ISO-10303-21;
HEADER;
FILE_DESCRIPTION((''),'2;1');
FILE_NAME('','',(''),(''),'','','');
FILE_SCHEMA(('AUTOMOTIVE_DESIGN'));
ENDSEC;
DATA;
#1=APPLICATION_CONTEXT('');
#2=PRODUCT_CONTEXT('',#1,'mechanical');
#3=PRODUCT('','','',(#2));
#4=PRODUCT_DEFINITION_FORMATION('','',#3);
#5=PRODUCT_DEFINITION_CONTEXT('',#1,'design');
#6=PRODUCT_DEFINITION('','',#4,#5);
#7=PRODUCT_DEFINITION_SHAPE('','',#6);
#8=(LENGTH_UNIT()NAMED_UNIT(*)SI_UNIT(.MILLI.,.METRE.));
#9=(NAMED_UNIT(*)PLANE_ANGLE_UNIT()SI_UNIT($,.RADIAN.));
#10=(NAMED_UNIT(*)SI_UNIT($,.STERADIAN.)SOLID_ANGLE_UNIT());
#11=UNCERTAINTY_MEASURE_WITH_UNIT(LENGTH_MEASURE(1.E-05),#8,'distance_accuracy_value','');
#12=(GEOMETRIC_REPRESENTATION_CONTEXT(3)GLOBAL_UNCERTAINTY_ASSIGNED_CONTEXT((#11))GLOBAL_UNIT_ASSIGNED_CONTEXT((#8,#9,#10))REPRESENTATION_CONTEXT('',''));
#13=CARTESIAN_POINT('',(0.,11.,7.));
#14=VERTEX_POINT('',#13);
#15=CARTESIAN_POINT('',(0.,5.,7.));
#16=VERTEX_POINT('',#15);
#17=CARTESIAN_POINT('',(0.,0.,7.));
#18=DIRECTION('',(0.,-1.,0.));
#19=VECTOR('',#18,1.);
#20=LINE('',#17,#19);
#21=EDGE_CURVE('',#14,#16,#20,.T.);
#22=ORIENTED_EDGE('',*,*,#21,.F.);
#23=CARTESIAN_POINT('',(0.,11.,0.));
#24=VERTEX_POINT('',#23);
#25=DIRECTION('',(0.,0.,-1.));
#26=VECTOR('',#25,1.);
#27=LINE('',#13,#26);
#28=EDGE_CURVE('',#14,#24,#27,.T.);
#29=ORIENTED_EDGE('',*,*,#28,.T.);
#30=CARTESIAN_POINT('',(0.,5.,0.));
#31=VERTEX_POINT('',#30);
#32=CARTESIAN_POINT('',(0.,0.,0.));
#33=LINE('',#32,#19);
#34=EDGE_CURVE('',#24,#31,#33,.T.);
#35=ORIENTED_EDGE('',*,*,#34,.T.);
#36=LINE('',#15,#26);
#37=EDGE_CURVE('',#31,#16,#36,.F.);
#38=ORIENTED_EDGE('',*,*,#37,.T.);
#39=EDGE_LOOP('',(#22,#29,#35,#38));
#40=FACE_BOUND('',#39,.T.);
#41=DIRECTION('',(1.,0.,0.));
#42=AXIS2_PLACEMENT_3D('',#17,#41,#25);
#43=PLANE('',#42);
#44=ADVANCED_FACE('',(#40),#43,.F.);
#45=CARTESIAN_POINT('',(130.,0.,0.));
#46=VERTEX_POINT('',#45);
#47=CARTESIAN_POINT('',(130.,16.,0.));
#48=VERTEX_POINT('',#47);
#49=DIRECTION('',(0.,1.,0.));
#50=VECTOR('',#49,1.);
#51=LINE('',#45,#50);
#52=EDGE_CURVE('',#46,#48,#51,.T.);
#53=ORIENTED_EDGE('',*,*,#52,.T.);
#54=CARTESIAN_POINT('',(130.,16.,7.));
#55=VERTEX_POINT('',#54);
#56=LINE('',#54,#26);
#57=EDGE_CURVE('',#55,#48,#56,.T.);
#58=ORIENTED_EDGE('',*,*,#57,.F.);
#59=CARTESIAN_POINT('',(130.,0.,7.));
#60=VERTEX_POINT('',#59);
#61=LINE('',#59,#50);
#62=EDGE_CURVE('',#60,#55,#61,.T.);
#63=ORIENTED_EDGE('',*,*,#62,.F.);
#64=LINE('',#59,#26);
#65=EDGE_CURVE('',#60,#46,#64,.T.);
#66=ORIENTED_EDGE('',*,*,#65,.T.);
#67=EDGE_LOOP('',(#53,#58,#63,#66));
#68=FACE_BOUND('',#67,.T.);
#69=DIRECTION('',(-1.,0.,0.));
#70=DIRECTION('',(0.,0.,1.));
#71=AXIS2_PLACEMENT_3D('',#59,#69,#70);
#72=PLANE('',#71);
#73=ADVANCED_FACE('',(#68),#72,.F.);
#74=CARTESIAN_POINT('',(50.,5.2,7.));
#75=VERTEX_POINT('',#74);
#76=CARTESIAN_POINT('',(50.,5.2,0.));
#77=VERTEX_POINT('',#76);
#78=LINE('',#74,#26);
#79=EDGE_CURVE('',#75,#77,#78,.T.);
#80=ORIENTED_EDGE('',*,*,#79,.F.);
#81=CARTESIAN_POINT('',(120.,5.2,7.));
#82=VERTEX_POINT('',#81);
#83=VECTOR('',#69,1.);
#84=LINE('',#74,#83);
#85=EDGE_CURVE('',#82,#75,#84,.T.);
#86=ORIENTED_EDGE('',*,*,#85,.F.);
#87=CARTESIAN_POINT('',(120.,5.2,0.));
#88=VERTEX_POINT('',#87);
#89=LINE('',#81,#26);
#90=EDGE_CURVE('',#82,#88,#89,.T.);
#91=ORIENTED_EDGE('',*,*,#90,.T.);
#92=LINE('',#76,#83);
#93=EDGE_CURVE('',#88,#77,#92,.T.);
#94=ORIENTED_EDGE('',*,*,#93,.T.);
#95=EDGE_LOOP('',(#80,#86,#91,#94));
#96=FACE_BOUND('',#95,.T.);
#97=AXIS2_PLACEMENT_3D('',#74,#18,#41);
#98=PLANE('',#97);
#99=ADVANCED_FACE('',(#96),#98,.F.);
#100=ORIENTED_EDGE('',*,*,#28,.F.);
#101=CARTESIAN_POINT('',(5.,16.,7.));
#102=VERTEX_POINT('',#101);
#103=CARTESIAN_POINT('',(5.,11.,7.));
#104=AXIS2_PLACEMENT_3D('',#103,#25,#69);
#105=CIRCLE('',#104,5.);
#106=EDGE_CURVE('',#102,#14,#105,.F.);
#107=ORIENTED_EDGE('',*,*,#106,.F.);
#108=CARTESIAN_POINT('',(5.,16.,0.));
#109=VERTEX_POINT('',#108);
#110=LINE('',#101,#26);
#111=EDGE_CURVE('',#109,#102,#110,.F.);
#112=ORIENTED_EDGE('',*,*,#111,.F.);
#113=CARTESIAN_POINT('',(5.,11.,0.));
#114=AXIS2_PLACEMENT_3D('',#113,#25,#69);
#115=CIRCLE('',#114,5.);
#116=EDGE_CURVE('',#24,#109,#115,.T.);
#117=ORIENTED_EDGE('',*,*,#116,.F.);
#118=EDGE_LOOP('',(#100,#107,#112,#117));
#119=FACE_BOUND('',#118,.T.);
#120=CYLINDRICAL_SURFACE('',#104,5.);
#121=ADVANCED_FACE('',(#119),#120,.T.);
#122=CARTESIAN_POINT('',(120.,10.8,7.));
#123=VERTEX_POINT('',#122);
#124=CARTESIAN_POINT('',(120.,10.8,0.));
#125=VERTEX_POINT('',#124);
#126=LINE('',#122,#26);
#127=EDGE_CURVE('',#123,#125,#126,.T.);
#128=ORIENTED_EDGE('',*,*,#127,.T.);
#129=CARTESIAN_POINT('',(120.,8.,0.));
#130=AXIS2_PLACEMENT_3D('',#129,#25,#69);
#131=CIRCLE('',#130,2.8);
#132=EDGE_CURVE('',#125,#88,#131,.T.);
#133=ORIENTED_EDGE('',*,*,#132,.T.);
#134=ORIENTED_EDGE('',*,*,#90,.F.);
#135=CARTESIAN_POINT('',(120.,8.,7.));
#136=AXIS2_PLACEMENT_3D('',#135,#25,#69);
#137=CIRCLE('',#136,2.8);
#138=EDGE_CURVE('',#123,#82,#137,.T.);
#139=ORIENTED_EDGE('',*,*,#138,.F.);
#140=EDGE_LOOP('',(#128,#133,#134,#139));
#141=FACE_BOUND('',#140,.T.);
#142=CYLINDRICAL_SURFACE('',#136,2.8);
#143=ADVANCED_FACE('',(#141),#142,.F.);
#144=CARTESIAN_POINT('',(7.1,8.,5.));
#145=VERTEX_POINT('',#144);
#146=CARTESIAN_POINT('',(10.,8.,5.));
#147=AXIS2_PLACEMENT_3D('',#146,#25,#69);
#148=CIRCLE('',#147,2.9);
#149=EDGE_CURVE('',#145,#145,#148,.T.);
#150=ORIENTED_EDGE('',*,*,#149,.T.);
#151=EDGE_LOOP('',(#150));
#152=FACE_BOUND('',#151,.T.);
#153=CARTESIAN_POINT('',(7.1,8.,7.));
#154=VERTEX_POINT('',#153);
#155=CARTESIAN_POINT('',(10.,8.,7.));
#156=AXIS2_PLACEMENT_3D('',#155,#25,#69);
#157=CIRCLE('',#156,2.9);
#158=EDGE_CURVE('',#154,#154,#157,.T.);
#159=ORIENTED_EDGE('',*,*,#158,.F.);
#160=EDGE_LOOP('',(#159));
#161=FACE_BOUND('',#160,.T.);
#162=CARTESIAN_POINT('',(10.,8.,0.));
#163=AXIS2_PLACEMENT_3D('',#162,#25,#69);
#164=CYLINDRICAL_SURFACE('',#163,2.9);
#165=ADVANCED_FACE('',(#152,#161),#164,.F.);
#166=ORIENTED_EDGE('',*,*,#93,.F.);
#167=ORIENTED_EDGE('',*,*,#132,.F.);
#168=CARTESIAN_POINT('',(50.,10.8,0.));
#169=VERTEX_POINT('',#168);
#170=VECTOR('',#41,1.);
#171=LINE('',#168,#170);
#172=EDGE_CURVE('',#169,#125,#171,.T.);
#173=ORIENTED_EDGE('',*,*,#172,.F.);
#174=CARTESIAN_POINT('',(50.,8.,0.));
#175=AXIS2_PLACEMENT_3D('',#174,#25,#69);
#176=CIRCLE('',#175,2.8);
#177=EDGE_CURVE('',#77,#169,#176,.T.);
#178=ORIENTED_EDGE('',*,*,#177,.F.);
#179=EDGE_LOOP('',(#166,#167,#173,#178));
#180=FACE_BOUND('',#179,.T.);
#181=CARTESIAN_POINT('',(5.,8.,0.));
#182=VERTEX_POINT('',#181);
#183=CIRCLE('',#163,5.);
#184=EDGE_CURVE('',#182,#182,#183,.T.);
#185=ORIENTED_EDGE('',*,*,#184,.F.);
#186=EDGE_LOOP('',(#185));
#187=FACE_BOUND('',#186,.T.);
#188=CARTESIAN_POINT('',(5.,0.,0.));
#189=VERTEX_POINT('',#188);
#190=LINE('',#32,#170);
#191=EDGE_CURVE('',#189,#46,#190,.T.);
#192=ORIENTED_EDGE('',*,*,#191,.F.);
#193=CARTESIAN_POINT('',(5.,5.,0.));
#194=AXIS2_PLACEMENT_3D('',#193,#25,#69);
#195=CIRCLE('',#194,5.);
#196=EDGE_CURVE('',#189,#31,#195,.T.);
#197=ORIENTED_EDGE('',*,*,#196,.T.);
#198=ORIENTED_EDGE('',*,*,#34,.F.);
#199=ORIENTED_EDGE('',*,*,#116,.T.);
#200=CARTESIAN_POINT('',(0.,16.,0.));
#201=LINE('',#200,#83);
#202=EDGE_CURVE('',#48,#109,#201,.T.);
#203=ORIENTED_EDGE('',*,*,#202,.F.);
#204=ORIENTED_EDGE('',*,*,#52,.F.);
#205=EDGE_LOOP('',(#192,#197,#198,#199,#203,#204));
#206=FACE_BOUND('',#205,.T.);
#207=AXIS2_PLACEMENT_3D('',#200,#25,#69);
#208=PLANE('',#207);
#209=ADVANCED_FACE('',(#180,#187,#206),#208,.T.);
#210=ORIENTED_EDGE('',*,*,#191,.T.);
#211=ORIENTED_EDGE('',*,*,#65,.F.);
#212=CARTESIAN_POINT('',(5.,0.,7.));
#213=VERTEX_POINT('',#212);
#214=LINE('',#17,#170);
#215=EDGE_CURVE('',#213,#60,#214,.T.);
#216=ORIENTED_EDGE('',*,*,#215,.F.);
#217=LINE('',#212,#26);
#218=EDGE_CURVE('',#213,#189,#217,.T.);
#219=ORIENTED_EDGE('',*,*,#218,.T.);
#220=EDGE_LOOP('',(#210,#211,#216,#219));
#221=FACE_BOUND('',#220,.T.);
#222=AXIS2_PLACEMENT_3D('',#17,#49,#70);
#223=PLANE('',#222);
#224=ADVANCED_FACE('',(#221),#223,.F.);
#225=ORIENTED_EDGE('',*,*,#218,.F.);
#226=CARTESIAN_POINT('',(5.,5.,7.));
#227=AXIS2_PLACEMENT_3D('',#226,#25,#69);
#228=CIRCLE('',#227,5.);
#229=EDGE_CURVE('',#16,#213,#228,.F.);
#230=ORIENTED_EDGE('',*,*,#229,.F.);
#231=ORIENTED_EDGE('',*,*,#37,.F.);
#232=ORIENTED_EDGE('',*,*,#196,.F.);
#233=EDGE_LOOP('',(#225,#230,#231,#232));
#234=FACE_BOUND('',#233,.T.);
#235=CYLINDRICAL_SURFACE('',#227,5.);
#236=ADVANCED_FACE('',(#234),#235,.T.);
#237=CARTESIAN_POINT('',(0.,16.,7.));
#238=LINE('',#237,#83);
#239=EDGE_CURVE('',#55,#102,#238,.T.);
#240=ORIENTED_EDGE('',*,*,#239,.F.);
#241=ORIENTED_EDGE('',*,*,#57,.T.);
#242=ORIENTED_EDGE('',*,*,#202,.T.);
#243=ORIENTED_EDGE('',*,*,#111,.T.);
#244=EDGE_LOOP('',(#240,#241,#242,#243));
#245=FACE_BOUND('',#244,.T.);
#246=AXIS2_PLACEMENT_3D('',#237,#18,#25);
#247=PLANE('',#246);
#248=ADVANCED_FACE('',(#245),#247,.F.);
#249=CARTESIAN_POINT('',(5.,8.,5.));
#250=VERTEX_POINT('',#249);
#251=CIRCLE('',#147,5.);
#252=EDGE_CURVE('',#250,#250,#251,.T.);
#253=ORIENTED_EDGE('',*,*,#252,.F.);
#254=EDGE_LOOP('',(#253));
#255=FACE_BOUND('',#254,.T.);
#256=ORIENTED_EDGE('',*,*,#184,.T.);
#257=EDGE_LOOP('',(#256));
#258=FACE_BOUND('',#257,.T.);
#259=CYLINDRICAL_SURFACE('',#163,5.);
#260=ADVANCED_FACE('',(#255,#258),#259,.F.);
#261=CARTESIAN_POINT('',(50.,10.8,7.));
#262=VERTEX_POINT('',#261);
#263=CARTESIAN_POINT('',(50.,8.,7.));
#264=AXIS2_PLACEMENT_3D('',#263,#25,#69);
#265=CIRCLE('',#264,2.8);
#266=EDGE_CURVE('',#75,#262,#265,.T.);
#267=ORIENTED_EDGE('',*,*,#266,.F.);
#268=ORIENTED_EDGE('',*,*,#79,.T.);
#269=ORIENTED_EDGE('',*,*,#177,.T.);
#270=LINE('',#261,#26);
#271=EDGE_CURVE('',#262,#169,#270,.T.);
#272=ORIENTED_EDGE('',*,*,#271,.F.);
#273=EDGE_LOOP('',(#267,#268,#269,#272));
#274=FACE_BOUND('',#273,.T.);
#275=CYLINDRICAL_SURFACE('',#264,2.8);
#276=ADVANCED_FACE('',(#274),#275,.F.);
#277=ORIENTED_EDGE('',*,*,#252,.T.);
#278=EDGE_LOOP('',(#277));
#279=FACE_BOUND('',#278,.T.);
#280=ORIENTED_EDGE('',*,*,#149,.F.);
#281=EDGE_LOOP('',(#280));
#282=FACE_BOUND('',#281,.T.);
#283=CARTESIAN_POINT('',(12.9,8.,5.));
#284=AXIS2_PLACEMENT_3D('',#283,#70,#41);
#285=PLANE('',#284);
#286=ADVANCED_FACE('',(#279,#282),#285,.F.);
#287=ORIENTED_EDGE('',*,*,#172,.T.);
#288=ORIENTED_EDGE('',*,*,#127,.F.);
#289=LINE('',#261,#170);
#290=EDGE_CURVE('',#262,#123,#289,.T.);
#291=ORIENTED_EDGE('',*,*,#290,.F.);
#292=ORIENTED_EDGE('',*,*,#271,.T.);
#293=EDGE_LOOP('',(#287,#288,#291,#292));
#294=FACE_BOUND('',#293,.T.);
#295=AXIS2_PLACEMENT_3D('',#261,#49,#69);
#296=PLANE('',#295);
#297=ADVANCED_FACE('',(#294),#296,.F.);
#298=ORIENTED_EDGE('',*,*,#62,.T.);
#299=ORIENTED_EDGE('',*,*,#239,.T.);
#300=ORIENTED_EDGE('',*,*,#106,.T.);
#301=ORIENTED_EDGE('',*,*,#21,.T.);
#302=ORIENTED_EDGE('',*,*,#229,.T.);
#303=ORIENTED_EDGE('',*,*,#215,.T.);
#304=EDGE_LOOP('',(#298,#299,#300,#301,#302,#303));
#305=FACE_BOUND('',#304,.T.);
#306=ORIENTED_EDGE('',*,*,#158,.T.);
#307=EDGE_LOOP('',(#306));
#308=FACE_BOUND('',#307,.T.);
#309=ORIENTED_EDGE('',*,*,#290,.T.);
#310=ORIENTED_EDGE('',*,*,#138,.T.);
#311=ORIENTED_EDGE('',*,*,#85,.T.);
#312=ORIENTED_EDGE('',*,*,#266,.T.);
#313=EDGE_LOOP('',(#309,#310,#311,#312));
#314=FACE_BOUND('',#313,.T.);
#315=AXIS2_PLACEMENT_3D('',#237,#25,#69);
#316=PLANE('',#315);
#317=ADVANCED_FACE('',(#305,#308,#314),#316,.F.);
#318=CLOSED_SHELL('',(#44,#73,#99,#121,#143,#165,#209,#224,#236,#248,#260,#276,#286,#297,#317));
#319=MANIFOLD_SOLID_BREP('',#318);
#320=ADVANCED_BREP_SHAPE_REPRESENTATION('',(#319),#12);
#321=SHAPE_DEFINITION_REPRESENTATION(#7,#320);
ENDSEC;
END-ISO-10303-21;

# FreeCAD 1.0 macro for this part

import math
import FreeCAD as App
import Part
import Sketcher
from FreeCAD import Vector
Q = App.Units.Quantity


def edges_at(feature, points):
    """Names of the edges that pass closest to the given points."""
    edges = feature.Shape.Edges
    near = lambda p: min(range(len(edges)), key=lambda i: edges[i].distToShape(Part.Vertex(*p))[0])
    return sorted({f"Edge{near(p) + 1}" for p in points})


def add_polygon(sketch, points):
    """Adds a closed chain of lines whose ends are joined by coincident constraints."""
    first, n = sketch.GeometryCount, len(points)
    for a, b in zip(points, points[1:] + points[:1]):
        sketch.addGeometry(Part.LineSegment(App.Vector(*a, 0), App.Vector(*b, 0)), False)
    for i in range(n):
        sketch.addConstraint(Sketcher.Constraint("Coincident", first + i, 2, first + (i + 1) % n, 1))

doc = App.newDocument("Part")
body = doc.addObject("PartDesign::Body", "Body")

# Sketch on XY plane
sketch1 = body.newObject("Sketcher::SketchObject", "Sketch")
sketch1.AttachmentSupport = (doc.getObject("XY_Plane"), [""])
sketch1.MapMode = "FlatFace"
add_polygon(sketch1, [(0, 16), (0, 0), (130, 0), (130, 16)])  # lines 0-3
sketch1.addConstraint([
    Sketcher.Constraint("Vertical", 0),
    Sketcher.Constraint("Horizontal", 1),
    Sketcher.Constraint("Vertical", 2),
    Sketcher.Constraint("Horizontal", 3),
    Sketcher.Constraint("Coincident", 0, 2, -1, 1),
    Sketcher.Constraint("DistanceX", 1, 1, 1, 2, Q("130 mm")),
    Sketcher.Constraint("DistanceY", 0, 2, 0, 1, Q("16 mm")),
])
pad1 = body.newObject("PartDesign::Pad", "Pad")
pad1.Profile = sketch1
pad1.Length = 7

# Sketch on XY plane
sketch2 = body.newObject("Sketcher::SketchObject", "Sketch001")
sketch2.AttachmentSupport = (doc.getObject("XY_Plane"), [""])
sketch2.MapMode = "FlatFace"
sketch2.addGeometry(Part.Circle(Vector(10, 8, 0), Vector(0, 0, 1), 2.9), False)
sketch2.addConstraint([
    Sketcher.Constraint("Diameter", 0, Q("5.8 mm")),
    Sketcher.Constraint("DistanceX", -1, 1, 0, 3, Q("10 mm")),
    Sketcher.Constraint("DistanceY", -1, 1, 0, 3, Q("8 mm")),
])
doc.recompute()
hole = body.newObject("PartDesign::Hole", "Hole")
hole.Profile = sketch2
hole.ThreadType = "None"
hole.Diameter = 5.8
hole.DepthType = "ThroughAll"
hole.HoleCutType = "Counterbore"
hole.HoleCutDiameter = 10
hole.HoleCutDepth = 5
hole.Reversed = True
doc.recompute()

fillet = body.newObject("PartDesign::Fillet", "Fillet")
fillet.Base = (hole, edges_at(hole, [(0, 16, 3.5), (0, 0, 3.5)]))
fillet.Radius = 5

# Sketch on XY plane
sketch3 = body.newObject("Sketcher::SketchObject", "Sketch002")
sketch3.AttachmentSupport = (doc.getObject("XY_Plane"), [""])
sketch3.MapMode = "FlatFace"
sketch3.addGeometry([
    Part.LineSegment(Vector(120, 5.2, 0), Vector(50, 5.2, 0)),
    Part.ArcOfCircle(Part.Circle(Vector(50, 8, 0), Vector(0, 0, 1), 2.8), math.radians(90), math.radians(270)),
    Part.LineSegment(Vector(50, 10.8, 0), Vector(120, 10.8, 0)),
    Part.ArcOfCircle(Part.Circle(Vector(120, 8, 0), Vector(0, 0, 1), 2.8), math.radians(-90), math.radians(90)),
], False)
sketch3.addConstraint([
    Sketcher.Constraint("Tangent", 0, 2, 1, 2),
    Sketcher.Constraint("Tangent", 1, 1, 2, 1),
    Sketcher.Constraint("Tangent", 2, 2, 3, 2),
    Sketcher.Constraint("Tangent", 3, 1, 0, 1),
    Sketcher.Constraint("Horizontal", 0),
    Sketcher.Constraint("Horizontal", 2),
    Sketcher.Constraint("Radius", 1, Q("2.8 mm")),
    Sketcher.Constraint("DistanceX", 0, 2, 0, 1, Q("70 mm")),
    Sketcher.Constraint("DistanceX", -1, 1, 1, 3, Q("50 mm")),
    Sketcher.Constraint("DistanceY", -1, 1, 1, 3, Q("8 mm")),
])
pocket1 = body.newObject("PartDesign::Pocket", "Pocket")
pocket1.Profile = sketch3
pocket1.Type = "ThroughAll"
pocket1.Reversed = True

doc.recompute()
